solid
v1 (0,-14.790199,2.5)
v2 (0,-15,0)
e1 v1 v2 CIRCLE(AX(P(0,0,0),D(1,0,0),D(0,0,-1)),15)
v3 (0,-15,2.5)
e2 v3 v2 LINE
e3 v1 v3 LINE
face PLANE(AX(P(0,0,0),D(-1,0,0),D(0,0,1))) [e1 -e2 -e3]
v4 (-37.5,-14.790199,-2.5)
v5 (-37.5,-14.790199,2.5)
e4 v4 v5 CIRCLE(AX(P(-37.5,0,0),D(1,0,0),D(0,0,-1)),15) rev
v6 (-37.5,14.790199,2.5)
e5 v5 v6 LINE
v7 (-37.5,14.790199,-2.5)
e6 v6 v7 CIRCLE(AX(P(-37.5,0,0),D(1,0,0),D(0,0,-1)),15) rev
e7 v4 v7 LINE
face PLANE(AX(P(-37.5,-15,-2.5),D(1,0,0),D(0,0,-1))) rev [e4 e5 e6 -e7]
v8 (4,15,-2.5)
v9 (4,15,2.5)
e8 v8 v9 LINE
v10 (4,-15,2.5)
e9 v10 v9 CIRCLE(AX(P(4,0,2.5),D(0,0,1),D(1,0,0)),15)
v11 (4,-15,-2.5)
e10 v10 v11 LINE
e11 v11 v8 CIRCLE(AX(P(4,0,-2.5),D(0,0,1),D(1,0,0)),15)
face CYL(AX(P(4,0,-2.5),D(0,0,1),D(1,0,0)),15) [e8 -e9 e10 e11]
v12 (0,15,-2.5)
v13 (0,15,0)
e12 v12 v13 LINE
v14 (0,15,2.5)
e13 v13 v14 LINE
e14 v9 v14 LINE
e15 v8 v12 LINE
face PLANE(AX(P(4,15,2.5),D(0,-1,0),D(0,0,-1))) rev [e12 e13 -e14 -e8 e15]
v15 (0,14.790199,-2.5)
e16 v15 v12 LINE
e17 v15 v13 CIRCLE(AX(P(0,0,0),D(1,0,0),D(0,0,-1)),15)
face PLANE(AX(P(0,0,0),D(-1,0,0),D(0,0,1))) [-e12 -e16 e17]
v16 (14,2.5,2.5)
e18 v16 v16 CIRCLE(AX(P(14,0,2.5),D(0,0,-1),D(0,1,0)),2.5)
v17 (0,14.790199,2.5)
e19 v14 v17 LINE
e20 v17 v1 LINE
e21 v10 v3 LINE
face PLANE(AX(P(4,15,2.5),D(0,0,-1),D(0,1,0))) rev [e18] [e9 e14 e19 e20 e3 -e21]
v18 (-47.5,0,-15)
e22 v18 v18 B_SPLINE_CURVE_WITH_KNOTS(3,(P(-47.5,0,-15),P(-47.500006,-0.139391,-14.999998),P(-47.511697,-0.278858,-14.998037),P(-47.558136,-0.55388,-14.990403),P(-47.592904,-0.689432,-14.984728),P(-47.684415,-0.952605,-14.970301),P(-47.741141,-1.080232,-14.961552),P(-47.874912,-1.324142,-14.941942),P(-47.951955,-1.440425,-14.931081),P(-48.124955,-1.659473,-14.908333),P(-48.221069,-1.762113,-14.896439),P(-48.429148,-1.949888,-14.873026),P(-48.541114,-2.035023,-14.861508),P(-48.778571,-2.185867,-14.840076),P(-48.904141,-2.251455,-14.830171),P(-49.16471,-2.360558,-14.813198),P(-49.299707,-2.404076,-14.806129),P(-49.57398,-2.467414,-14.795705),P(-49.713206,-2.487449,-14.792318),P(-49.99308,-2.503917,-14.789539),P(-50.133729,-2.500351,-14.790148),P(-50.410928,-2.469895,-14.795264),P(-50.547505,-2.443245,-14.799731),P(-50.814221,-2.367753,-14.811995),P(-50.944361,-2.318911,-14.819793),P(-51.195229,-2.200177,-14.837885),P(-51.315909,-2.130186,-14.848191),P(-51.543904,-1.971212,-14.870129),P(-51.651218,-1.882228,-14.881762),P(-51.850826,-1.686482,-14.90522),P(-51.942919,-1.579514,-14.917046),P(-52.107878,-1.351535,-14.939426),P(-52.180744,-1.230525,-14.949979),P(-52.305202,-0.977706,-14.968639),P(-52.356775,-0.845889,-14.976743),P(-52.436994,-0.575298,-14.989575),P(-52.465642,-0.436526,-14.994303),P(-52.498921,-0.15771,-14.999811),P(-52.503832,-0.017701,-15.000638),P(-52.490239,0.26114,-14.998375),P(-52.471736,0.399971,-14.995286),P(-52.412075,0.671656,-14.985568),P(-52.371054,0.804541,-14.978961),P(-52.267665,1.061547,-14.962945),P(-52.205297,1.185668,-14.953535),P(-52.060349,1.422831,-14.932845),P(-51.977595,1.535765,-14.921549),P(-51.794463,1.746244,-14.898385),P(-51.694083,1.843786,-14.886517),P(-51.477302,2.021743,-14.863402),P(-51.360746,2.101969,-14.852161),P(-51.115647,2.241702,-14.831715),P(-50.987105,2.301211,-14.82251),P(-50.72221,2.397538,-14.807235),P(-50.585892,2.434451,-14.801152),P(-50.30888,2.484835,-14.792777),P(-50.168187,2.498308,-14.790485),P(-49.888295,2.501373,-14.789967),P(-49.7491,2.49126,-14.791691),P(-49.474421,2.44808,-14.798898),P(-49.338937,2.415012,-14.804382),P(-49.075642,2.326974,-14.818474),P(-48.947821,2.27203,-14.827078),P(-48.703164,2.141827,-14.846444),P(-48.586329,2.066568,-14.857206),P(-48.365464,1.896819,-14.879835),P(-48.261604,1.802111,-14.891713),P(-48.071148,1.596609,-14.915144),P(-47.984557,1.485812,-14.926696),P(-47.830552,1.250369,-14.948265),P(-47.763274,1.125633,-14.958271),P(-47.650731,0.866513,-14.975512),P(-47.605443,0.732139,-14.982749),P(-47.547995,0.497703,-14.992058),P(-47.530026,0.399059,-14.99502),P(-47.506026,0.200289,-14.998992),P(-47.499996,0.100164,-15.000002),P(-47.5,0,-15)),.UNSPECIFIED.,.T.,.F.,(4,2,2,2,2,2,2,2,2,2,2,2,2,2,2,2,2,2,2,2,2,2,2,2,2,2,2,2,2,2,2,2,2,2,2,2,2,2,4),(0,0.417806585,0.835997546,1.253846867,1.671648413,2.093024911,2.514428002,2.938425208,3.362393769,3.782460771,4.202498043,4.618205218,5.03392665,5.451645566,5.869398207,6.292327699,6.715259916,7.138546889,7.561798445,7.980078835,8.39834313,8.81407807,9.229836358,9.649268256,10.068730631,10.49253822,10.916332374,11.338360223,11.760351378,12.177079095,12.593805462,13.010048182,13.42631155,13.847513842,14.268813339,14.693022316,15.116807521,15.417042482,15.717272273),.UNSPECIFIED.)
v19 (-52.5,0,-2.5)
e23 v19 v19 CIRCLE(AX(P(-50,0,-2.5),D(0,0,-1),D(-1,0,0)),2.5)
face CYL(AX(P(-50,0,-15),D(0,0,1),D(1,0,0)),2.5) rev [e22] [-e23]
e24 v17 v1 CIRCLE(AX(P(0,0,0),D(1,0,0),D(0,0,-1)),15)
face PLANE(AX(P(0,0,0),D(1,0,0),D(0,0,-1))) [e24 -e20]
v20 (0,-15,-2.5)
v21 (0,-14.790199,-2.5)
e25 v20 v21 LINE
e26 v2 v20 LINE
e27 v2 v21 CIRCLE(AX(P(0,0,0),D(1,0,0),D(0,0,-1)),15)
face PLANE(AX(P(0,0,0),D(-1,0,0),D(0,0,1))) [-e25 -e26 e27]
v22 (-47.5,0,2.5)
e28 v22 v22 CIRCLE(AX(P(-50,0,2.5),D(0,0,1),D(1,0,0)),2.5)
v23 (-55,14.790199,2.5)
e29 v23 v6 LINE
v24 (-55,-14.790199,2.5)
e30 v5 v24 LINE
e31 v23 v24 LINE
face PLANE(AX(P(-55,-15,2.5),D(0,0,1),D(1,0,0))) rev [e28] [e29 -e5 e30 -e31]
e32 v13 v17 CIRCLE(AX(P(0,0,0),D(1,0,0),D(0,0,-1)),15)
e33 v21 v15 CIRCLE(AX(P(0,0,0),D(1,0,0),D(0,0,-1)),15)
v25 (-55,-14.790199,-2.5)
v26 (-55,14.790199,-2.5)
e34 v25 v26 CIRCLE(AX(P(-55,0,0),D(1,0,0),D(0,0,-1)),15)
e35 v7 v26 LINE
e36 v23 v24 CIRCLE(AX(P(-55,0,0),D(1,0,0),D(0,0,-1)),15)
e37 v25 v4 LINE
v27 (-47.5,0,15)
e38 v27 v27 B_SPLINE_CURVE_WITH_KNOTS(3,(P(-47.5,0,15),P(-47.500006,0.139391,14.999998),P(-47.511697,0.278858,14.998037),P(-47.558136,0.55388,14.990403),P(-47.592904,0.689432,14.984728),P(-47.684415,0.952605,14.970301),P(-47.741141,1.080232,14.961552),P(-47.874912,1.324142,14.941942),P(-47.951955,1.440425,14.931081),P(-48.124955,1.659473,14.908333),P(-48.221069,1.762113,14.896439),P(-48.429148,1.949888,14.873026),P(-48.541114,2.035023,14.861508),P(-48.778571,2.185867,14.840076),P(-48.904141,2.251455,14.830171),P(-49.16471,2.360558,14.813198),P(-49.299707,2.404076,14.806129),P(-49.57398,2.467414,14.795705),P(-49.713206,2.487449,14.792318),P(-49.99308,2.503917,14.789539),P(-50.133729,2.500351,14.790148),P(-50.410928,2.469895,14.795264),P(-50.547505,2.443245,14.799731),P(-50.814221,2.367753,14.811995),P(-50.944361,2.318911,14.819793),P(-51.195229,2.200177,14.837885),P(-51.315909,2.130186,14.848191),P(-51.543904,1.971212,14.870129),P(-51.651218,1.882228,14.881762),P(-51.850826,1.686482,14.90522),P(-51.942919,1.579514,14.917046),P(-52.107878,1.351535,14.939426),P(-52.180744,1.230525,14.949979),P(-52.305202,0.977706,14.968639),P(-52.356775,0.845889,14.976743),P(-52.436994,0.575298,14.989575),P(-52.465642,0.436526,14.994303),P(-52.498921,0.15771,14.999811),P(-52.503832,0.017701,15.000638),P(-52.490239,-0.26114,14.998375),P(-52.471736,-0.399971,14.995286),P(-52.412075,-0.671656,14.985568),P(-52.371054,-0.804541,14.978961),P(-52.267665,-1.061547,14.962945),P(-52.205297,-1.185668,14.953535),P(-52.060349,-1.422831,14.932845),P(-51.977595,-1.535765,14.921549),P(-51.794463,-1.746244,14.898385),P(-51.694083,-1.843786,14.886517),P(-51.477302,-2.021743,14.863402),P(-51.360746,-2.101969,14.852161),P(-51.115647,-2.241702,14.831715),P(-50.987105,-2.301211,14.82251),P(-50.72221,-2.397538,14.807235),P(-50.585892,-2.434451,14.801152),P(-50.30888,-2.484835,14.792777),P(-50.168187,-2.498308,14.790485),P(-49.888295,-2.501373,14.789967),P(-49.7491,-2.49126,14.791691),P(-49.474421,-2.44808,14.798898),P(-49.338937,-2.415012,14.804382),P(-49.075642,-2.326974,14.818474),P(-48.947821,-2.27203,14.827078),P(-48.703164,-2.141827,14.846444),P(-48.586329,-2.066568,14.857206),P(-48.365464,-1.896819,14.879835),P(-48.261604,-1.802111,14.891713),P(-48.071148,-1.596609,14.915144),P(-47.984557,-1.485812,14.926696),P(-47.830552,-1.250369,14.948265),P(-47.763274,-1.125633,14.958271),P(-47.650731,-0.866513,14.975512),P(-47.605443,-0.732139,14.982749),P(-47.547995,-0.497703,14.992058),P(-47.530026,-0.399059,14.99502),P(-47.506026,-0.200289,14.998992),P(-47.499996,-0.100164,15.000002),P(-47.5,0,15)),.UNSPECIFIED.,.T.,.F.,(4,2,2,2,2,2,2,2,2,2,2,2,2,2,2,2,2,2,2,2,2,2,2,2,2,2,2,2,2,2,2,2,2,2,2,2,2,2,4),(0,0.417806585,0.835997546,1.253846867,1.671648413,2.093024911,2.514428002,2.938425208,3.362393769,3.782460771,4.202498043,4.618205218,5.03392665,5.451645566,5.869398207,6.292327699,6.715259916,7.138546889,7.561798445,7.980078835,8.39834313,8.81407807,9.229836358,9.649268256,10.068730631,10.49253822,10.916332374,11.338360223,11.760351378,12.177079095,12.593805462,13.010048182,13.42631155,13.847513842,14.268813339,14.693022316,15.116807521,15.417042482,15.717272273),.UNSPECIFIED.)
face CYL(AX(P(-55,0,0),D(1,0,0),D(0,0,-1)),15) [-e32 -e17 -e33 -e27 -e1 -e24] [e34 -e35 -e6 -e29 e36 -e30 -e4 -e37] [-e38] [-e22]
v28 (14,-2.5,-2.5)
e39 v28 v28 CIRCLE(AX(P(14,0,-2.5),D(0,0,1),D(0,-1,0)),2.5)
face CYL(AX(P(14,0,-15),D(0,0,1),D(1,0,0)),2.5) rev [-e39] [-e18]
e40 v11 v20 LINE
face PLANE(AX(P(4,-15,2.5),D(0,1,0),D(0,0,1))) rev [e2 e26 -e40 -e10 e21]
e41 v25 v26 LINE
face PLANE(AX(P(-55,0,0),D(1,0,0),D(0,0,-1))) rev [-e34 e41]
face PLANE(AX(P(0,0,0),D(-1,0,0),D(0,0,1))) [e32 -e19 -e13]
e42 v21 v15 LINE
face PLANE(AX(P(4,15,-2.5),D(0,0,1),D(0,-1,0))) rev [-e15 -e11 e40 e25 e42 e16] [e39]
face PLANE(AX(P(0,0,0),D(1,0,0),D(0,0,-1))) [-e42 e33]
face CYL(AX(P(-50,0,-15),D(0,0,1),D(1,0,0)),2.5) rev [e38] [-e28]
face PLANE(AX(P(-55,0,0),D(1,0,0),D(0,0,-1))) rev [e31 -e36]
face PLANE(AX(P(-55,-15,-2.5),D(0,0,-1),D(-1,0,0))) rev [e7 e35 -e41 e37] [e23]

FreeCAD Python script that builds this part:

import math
import FreeCAD as App
import Part
import Sketcher
from FreeCAD import Vector

doc = App.newDocument("Part")
body = doc.addObject("PartDesign::Body", "Body")

sketch1 = body.newObject("Sketcher::SketchObject", "Sketch")
sketch1.AttachmentSupport = (doc.getObject("YZ_Plane"), [""])
sketch1.MapMode = "FlatFace"
sketch1.addGeometry(Part.Circle(Vector(0, 0, 0), Vector(0, 0, 1), 15), False)
sketch1.addConstraint(Sketcher.Constraint("Coincident", 0, 3, -1, 1))
sketch1.addConstraint(Sketcher.Constraint("Diameter", 0, 30.0))
pad1 = body.newObject("PartDesign::Pad", "Pad")
pad1.Profile = sketch1
pad1.Length = 55
pad1.Reversed = True

sketch2 = body.newObject("Sketcher::SketchObject", "Sketch001")
sketch2.AttachmentSupport = (doc.getObject("XZ_Plane"), [""])
sketch2.MapMode = "FlatFace"
sketch2.addGeometry(Part.LineSegment(Vector(-55, -2, 0), Vector(-55, 2, 0)), False)
sketch2.addGeometry(Part.LineSegment(Vector(-55, 2, 0), Vector(-38, 2, 0)), False)
sketch2.addGeometry(Part.LineSegment(Vector(-38, 2, 0), Vector(-38, -2, 0)), False)
sketch2.addGeometry(Part.LineSegment(Vector(-38, -2, 0), Vector(-55, -2, 0)), False)
sketch2.addConstraint(Sketcher.Constraint("Coincident", 0, 2, 1, 1))
sketch2.addConstraint(Sketcher.Constraint("Coincident", 1, 2, 2, 1))
sketch2.addConstraint(Sketcher.Constraint("Coincident", 2, 2, 3, 1))
sketch2.addConstraint(Sketcher.Constraint("Coincident", 3, 2, 0, 1))
sketch2.addConstraint(Sketcher.Constraint("Vertical", 0))
sketch2.addConstraint(Sketcher.Constraint("Horizontal", 1))
sketch2.addConstraint(Sketcher.Constraint("Vertical", 2))
sketch2.addConstraint(Sketcher.Constraint("Horizontal", 3))
sketch2.addConstraint(Sketcher.Constraint("DistanceY", 0, 1, 0, 2, 5.0))
sketch2.addConstraint(Sketcher.Constraint("DistanceX", 1, 1, 1, 2, 17.5))
sketch2.addConstraint(Sketcher.Constraint("DistanceX", 0, 2, -1, 1, 55.0))
sketch2.addConstraint(Sketcher.Constraint("DistanceY", -1, 1, 0, 2, 2.5))
pocket1 = body.newObject("PartDesign::Pocket", "Pocket")
pocket1.Profile = sketch2
pocket1.Type = "ThroughAll"
pocket1.Midplane = True

sketch3 = body.newObject("Sketcher::SketchObject", "Sketch002")
sketch3.AttachmentSupport = (doc.getObject("XY_Plane"), [""])
sketch3.MapMode = "FlatFace"
sketch3.addGeometry(Part.Circle(Vector(-50, 0, 0), Vector(0, 0, 1), 2.5), False)
sketch3.addConstraint(Sketcher.Constraint("PointOnObject", 0, 3, -1))
sketch3.addConstraint(Sketcher.Constraint("Diameter", 0, 5.0))
sketch3.addConstraint(Sketcher.Constraint("DistanceX", 0, 3, -1, 1, 50.0))
pocket2 = body.newObject("PartDesign::Pocket", "Pocket001")
pocket2.Profile = sketch3
pocket2.Type = "ThroughAll"
pocket2.Midplane = True

sketch4 = body.newObject("Sketcher::SketchObject", "Sketch003")
sketch4.AttachmentSupport = (doc.getObject("YZ_Plane"), [""])
sketch4.MapMode = "FlatFace"
sketch4.addGeometry(Part.LineSegment(Vector(15, 2, 0), Vector(-15, 2, 0)), False)
sketch4.addGeometry(Part.LineSegment(Vector(-15, 2, 0), Vector(-15, -2, 0)), False)
sketch4.addGeometry(Part.LineSegment(Vector(-15, -2, 0), Vector(15, -2, 0)), False)
sketch4.addGeometry(Part.LineSegment(Vector(15, -2, 0), Vector(15, 2, 0)), False)
sketch4.addConstraint(Sketcher.Constraint("Coincident", 0, 2, 1, 1))
sketch4.addConstraint(Sketcher.Constraint("Coincident", 1, 2, 2, 1))
sketch4.addConstraint(Sketcher.Constraint("Coincident", 2, 2, 3, 1))
sketch4.addConstraint(Sketcher.Constraint("Coincident", 3, 2, 0, 1))
sketch4.addConstraint(Sketcher.Constraint("Horizontal", 0))
sketch4.addConstraint(Sketcher.Constraint("Vertical", 1))
sketch4.addConstraint(Sketcher.Constraint("Horizontal", 2))
sketch4.addConstraint(Sketcher.Constraint("Vertical", 3))
sketch4.addConstraint(Sketcher.Constraint("Symmetric", 0, 2, 2, 2, -1, 1))
sketch4.addConstraint(Sketcher.Constraint("DistanceX", 0, 2, 0, 1, 30.0))
sketch4.addConstraint(Sketcher.Constraint("DistanceY", 1, 2, 1, 1, 5.0))
pad2 = body.newObject("PartDesign::Pad", "Pad001")
pad2.Profile = sketch4
pad2.Length = 4

sketch5 = body.newObject("Sketcher::SketchObject", "Sketch004")
sketch5.AttachmentSupport = (doc.getObject("XY_Plane"), [""])
sketch5.MapMode = "FlatFace"
sketch5.AttachmentOffset = App.Placement(Vector(0, 0, 2.5), App.Rotation())
sketch5.addGeometry(Part.LineSegment(Vector(4, 15, 0), Vector(4, -15, 0)), False)
sketch5.addGeometry(Part.ArcOfCircle(Part.Circle(Vector(4, 0, 0), Vector(0, 0, 1), 15), math.radians(-90), math.radians(90)), False)
sketch5.addConstraint(Sketcher.Constraint("Coincident", 0, 1, 1, 2))
sketch5.addConstraint(Sketcher.Constraint("Coincident", 1, 1, 0, 2))
sketch5.addConstraint(Sketcher.Constraint("Vertical", 0))
sketch5.addConstraint(Sketcher.Constraint("PointOnObject", 1, 3, -1))
sketch5.addConstraint(Sketcher.Constraint("Vertical", 1, 3, 0, 1))
sketch5.addConstraint(Sketcher.Constraint("Radius", 1, 15.0))
sketch5.addConstraint(Sketcher.Constraint("DistanceX", -1, 1, 1, 3, 4.0))
pad3 = body.newObject("PartDesign::Pad", "Pad002")
pad3.Profile = sketch5
pad3.Length = 5
pad3.Reversed = True

sketch6 = body.newObject("Sketcher::SketchObject", "Sketch005")
sketch6.AttachmentSupport = (doc.getObject("XY_Plane"), [""])
sketch6.MapMode = "FlatFace"
sketch6.AttachmentOffset = App.Placement(Vector(0, 0, 2.5), App.Rotation())
sketch6.addGeometry(Part.Circle(Vector(14, 0, 0), Vector(0, 0, 1), 2.5), False)
sketch6.addConstraint(Sketcher.Constraint("PointOnObject", 0, 3, -1))
sketch6.addConstraint(Sketcher.Constraint("Diameter", 0, 5.0))
sketch6.addConstraint(Sketcher.Constraint("DistanceX", -1, 1, 0, 3, 14.0))
pocket3 = body.newObject("PartDesign::Pocket", "Pocket002")
pocket3.Profile = sketch6
pocket3.Type = "ThroughAll"
pocket3.Midplane = True

doc.recompute()
